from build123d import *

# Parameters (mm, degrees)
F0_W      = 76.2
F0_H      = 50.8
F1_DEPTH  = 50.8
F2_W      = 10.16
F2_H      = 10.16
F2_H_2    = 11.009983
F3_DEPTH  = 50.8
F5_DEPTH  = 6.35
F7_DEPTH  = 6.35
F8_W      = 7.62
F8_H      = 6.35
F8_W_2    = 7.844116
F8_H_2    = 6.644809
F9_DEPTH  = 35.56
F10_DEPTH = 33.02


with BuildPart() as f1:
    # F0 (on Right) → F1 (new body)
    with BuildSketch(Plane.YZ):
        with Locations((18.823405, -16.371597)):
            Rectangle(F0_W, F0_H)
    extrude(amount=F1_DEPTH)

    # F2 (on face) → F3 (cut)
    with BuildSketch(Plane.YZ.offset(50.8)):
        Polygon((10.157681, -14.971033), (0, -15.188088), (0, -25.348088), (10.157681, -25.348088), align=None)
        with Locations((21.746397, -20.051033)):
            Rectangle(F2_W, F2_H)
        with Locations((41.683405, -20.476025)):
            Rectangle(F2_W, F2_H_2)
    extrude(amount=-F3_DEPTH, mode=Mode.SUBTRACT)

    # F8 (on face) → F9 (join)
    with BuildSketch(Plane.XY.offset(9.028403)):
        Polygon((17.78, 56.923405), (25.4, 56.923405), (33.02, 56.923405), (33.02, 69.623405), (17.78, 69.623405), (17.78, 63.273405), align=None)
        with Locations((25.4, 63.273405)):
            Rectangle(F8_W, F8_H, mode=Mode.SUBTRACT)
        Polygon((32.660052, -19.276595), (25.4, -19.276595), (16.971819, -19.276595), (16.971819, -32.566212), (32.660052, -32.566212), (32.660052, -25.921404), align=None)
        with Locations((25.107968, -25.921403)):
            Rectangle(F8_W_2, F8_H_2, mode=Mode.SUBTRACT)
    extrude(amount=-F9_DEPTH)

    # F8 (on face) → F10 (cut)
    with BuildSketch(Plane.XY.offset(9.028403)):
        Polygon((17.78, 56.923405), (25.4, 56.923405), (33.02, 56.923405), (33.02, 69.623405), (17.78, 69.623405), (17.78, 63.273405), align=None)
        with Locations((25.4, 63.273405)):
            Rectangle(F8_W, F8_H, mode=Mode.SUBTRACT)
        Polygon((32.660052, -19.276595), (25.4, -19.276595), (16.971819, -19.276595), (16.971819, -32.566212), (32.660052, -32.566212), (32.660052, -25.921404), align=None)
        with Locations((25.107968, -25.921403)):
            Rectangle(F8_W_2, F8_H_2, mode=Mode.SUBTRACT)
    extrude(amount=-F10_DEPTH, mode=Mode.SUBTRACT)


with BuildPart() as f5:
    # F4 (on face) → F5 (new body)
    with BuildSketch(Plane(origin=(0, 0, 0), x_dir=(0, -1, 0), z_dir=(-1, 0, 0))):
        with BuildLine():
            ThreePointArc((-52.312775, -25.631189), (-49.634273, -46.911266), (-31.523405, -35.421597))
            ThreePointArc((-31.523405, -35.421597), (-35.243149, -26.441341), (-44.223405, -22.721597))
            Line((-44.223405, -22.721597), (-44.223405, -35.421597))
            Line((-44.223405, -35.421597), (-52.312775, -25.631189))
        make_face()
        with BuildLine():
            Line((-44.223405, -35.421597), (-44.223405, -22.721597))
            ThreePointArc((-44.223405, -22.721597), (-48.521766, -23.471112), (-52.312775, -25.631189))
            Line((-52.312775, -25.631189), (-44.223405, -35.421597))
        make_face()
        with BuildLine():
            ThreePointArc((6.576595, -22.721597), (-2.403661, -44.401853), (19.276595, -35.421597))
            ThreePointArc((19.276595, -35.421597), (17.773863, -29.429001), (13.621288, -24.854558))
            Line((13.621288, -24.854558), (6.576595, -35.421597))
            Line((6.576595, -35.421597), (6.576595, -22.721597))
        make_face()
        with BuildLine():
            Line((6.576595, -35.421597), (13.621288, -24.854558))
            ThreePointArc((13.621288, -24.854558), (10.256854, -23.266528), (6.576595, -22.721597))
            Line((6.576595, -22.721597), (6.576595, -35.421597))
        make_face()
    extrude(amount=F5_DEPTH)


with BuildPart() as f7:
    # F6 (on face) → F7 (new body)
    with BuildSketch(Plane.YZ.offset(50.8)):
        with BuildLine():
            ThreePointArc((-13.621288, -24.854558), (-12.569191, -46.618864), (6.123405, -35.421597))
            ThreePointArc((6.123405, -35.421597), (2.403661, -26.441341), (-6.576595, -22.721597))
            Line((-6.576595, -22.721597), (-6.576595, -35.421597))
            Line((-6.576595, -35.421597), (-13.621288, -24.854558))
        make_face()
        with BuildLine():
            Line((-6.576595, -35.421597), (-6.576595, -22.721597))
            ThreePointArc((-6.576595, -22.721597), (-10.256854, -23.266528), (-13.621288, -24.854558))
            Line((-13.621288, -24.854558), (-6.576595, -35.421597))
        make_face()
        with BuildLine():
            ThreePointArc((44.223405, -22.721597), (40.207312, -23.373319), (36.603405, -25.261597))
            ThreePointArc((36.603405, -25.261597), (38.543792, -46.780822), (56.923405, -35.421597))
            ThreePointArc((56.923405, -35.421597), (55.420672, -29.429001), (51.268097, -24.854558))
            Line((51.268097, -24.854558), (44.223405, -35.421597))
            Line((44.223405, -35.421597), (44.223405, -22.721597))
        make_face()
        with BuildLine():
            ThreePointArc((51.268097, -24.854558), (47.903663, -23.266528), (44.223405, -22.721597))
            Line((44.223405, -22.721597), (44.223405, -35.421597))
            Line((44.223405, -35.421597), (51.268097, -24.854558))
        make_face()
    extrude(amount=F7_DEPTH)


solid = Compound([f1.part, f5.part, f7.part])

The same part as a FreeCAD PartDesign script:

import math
import FreeCAD as App
import Part
import Sketcher
Q = App.Units.Quantity


def add_polygon(sketch, points):
    """Adds a closed chain of lines whose ends are joined by coincident constraints."""
    first, n = sketch.GeometryCount, len(points)
    for a, b in zip(points, points[1:] + points[:1]):
        sketch.addGeometry(Part.LineSegment(App.Vector(*a, 0), App.Vector(*b, 0)), False)
    for i in range(n):
        sketch.addConstraint(Sketcher.Constraint("Coincident", first + i, 2, first + (i + 1) % n, 1))

doc = App.newDocument("Part")
body = doc.addObject("PartDesign::Body", "Body")

sketch1 = doc.addObject("Sketcher::SketchObject", "Sketch")
body.addObject(sketch1)
sketch1.AttachmentSupport = (doc.YZ_Plane, [""])
sketch1.MapMode = "FlatFace"
add_polygon(sketch1, [(-19, 9), (-19, -42), (57, -42), (57, 9)])
sketch1.addConstraint([
    Sketcher.Constraint("Vertical", 0),
    Sketcher.Constraint("Horizontal", 1),
    Sketcher.Constraint("Vertical", 2),
    Sketcher.Constraint("Horizontal", 3),
    Sketcher.Constraint("DistanceX", 1, 1, 1, 2, Q("3 in")),
    Sketcher.Constraint("DistanceY", 0, 2, 0, 1, Q("2 in")),
    Sketcher.Constraint("DistanceX", 0, 2, -1, 1, Q("19.276595 mm")),
    Sketcher.Constraint("DistanceY", 0, 2, -1, 1, Q("41.771597 mm")),
])
pad1 = doc.addObject("PartDesign::Pad", "Pad")
body.addObject(pad1)
pad1.Profile = sketch1
pad1.Length = Q("2 in")

sketch2 = doc.addObject("Sketcher::SketchObject", "Sketch001")
body.addObject(sketch2)
sketch2.AttachmentSupport = (doc.YZ_Plane, [""])
sketch2.MapMode = "FlatFace"
sketch2.AttachmentOffset = App.Placement(App.Vector(0, 0, 2 * 25.4), App.Rotation())
add_polygon(sketch2, [(10.157681, -14.971033), (0, -15.188088), (0, -25.348088), (10.157681, -25.348088)])
add_polygon(sketch2, [(16.666397, -14.971033), (16.666397, -25.131033), (26.826397, -25.131033), (26.826397, -14.971033)])
add_polygon(sketch2, [(36.603405, -14.971034), (36.603405, -25.981016), (46.763405, -25.981016), (46.763405, -14.971034)])
sketch2.addConstraint([
    Sketcher.Constraint("Vertical", 1),
    Sketcher.Constraint("Horizontal", 2),
    Sketcher.Constraint("Vertical", 3),
    Sketcher.Constraint("Vertical", 4),
    Sketcher.Constraint("Horizontal", 5),
    Sketcher.Constraint("Vertical", 6),
    Sketcher.Constraint("Horizontal", 7),
    Sketcher.Constraint("Vertical", 8),
    Sketcher.Constraint("Horizontal", 9),
    Sketcher.Constraint("Vertical", 10),
    Sketcher.Constraint("Horizontal", 11),
    Sketcher.Constraint("PointOnObject", 0, 2, -2),
    Sketcher.Constraint("Horizontal", 3, 2, 6, 2),
    Sketcher.Constraint("Horizontal", 7, 2, 10, 2),
    Sketcher.Constraint("Equal", 7, 9),
    Sketcher.Constraint("Equal", 11, 1),
    Sketcher.Constraint("Equal", 1, 4),
    Sketcher.Constraint("DistanceX", 5, 1, 5, 2, Q("0.4 in")),
    Sketcher.Constraint("Distance", 0, Q("0.4 in")),
    Sketcher.Constraint("DistanceX", 2, 1, 2, 2, Q("10.157681 mm")),
    Sketcher.Constraint("DistanceY", 8, 2, 8, 1, Q("11.009983 mm")),
    Sketcher.Constraint("DistanceY", 1, 2, -1, 1, Q("25.348088 mm")),
    Sketcher.Constraint("DistanceX", 5, 2, 8, 2, Q("9.777008 mm")),
    Sketcher.Constraint("DistanceX", -1, 1, 4, 2, Q("16.666397 mm")),
])
pocket1 = doc.addObject("PartDesign::Pocket", "Pocket")
body.addObject(pocket1)
pocket1.Profile = sketch2
pocket1.Length = Q("2 in")

sketch3 = doc.addObject("Sketcher::SketchObject", "Sketch002")
body.addObject(sketch3)
sketch3.AttachmentSupport = (doc.XY_Plane, [""])
sketch3.MapMode = "FlatFace"
sketch3.AttachmentOffset = App.Placement(App.Vector(0, 0, 9.028403), App.Rotation())
add_polygon(sketch3, [(18, 57), (33, 57), (33, 70), (18, 70)])
add_polygon(sketch3, [(29, 60), (22, 60), (22, 66), (29, 66)])
add_polygon(sketch3, [(33, -19), (17, -19), (17, -33), (33, -33)])
add_polygon(sketch3, [(29, -29), (21, -29), (21, -23), (29, -23)])
sketch3.addConstraint([
    Sketcher.Constraint("Horizontal", 0),
    Sketcher.Constraint("Vertical", 1),
    Sketcher.Constraint("Horizontal", 2),
    Sketcher.Constraint("Vertical", 3),
    Sketcher.Constraint("Horizontal", 4),
    Sketcher.Constraint("Vertical", 5),
    Sketcher.Constraint("Horizontal", 6),
    Sketcher.Constraint("Vertical", 7),
    Sketcher.Constraint("Horizontal", 8),
    Sketcher.Constraint("Vertical", 9),
    Sketcher.Constraint("Horizontal", 10),
    Sketcher.Constraint("Vertical", 11),
    Sketcher.Constraint("Horizontal", 12),
    Sketcher.Constraint("Vertical", 13),
    Sketcher.Constraint("Horizontal", 14),
    Sketcher.Constraint("Vertical", 15),
    Sketcher.Constraint("DistanceX", 0, 1, 0, 2, Q("0.6 in")),
    Sketcher.Constraint("DistanceX", 4, 2, 4, 1, Q("0.3 in")),
    Sketcher.Constraint("DistanceY", 1, 1, 1, 2, Q("0.5 in")),
    Sketcher.Constraint("DistanceY", 8, 2, 3, 2, Q("3 in")),
    Sketcher.Constraint("DistanceY", 5, 1, 5, 2, Q("0.25 in")),
    Sketcher.Constraint("DistanceX", -1, 1, 0, 2, Q("1.3 in")),
    Sketcher.Constraint("DistanceX", -1, 1, 4, 2, Q("0.85 in")),
    Sketcher.Constraint("DistanceY", 3, 2, 4, 2, Q("0.125 in")),
    Sketcher.Constraint("DistanceY", 13, 1, 13, 2, Q("6.644809 mm")),
    Sketcher.Constraint("DistanceY", 13, 2, -1, 1, Q("22.598999 mm")),
    Sketcher.Constraint("DistanceX", 8, 2, 8, 1, Q("15.688233 mm")),
    Sketcher.Constraint("DistanceX", 12, 2, 12, 1, Q("7.844116 mm")),
    Sketcher.Constraint("DistanceY", 9, 2, 9, 1, Q("13.289617 mm")),
    Sketcher.Constraint("DistanceX", -1, 1, 8, 2, Q("16.971819 mm")),
    Sketcher.Constraint("DistanceX", -1, 1, 12, 2, Q("21.18591 mm")),
    Sketcher.Constraint("DistanceY", -1, 1, 0, 2, Q("56.923405 mm")),
])
pad2 = doc.addObject("PartDesign::Pad", "Pad001")
body.addObject(pad2)
pad2.Profile = sketch3
pad2.Length = Q("1.4 in")
pad2.Reversed = True

sketch4 = doc.addObject("Sketcher::SketchObject", "Sketch003")
body.addObject(sketch4)
sketch4.AttachmentSupport = (doc.XY_Plane, [""])
sketch4.MapMode = "FlatFace"
sketch4.AttachmentOffset = App.Placement(App.Vector(0, 0, 9.028403), App.Rotation())
add_polygon(sketch4, [(18, 57), (33, 57), (33, 70), (18, 70)])
add_polygon(sketch4, [(29, 60), (22, 60), (22, 66), (29, 66)])
add_polygon(sketch4, [(33, -19), (17, -19), (17, -33), (33, -33)])
add_polygon(sketch4, [(29, -29), (21, -29), (21, -23), (29, -23)])
sketch4.addConstraint([
    Sketcher.Constraint("Horizontal", 0),
    Sketcher.Constraint("Vertical", 1),
    Sketcher.Constraint("Horizontal", 2),
    Sketcher.Constraint("Vertical", 3),
    Sketcher.Constraint("Horizontal", 4),
    Sketcher.Constraint("Vertical", 5),
    Sketcher.Constraint("Horizontal", 6),
    Sketcher.Constraint("Vertical", 7),
    Sketcher.Constraint("Horizontal", 8),
    Sketcher.Constraint("Vertical", 9),
    Sketcher.Constraint("Horizontal", 10),
    Sketcher.Constraint("Vertical", 11),
    Sketcher.Constraint("Horizontal", 12),
    Sketcher.Constraint("Vertical", 13),
    Sketcher.Constraint("Horizontal", 14),
    Sketcher.Constraint("Vertical", 15),
    Sketcher.Constraint("DistanceX", 0, 1, 0, 2, Q("0.6 in")),
    Sketcher.Constraint("DistanceX", 4, 2, 4, 1, Q("0.3 in")),
    Sketcher.Constraint("DistanceY", 1, 1, 1, 2, Q("0.5 in")),
    Sketcher.Constraint("DistanceY", 8, 2, 3, 2, Q("3 in")),
    Sketcher.Constraint("DistanceY", 5, 1, 5, 2, Q("0.25 in")),
    Sketcher.Constraint("DistanceX", -1, 1, 0, 2, Q("1.3 in")),
    Sketcher.Constraint("DistanceX", -1, 1, 4, 2, Q("0.85 in")),
    Sketcher.Constraint("DistanceY", 3, 2, 4, 2, Q("0.125 in")),
    Sketcher.Constraint("DistanceY", 13, 1, 13, 2, Q("6.644809 mm")),
    Sketcher.Constraint("DistanceY", 13, 2, -1, 1, Q("22.598999 mm")),
    Sketcher.Constraint("DistanceX", 8, 2, 8, 1, Q("15.688233 mm")),
    Sketcher.Constraint("DistanceX", 12, 2, 12, 1, Q("7.844116 mm")),
    Sketcher.Constraint("DistanceY", 9, 2, 9, 1, Q("13.289617 mm")),
    Sketcher.Constraint("DistanceX", -1, 1, 8, 2, Q("16.971819 mm")),
    Sketcher.Constraint("DistanceX", -1, 1, 12, 2, Q("21.18591 mm")),
    Sketcher.Constraint("DistanceY", -1, 1, 0, 2, Q("56.923405 mm")),
])
pocket2 = doc.addObject("PartDesign::Pocket", "Pocket001")
body.addObject(pocket2)
pocket2.Profile = sketch4
pocket2.Length = Q("1.3 in")
body2 = doc.addObject("PartDesign::Body", "Body001")
body2.AllowCompound = True

sketch5 = doc.addObject("Sketcher::SketchObject", "Sketch004")
body2.addObject(sketch5)
sketch5.AttachmentSupport = (doc.getObject("YZ_Plane001"), [""])
sketch5.MapMode = "FlatFace"
sketch5.addGeometry([
    Part.ArcOfCircle(Part.Circle(App.Vector(44, -35, 0), App.Vector(0, 0, 1), 13), math.radians(-180), math.radians(50)),
    Part.ArcOfCircle(Part.Circle(App.Vector(44, -35, 0), App.Vector(0, 0, 1), 13), math.radians(90), math.radians(180)),
    Part.ArcOfCircle(Part.Circle(App.Vector(44, -35, 0), App.Vector(0, 0, 1), 13), math.radians(50), math.radians(90)),
    Part.ArcOfCircle(Part.Circle(App.Vector(-7, -35, 0), App.Vector(0, 0, 1), 13), math.radians(-180), math.radians(90)),
    Part.ArcOfCircle(Part.Circle(App.Vector(-7, -35, 0), App.Vector(0, 0, 1), 13), math.radians(124), math.radians(180)),
    Part.ArcOfCircle(Part.Circle(App.Vector(-7, -35, 0), App.Vector(0, 0, 1), 13), math.radians(90), math.radians(124)),
], False)
sketch5.addConstraint([
    Sketcher.Constraint("Tangent", 0, 1, 1, 2),
    Sketcher.Constraint("Tangent", 1, 1, 2, 2),
    Sketcher.Constraint("Tangent", 2, 1, 0, 2),
    Sketcher.Constraint("Tangent", 3, 1, 4, 2),
    Sketcher.Constraint("Tangent", 4, 1, 5, 2),
    Sketcher.Constraint("Tangent", 5, 1, 3, 2),
    Sketcher.Constraint("Equal", 2, 3),
    Sketcher.Constraint("Horizontal", 2, 3, 3, 3),
    Sketcher.Constraint("Horizontal", 5, 3, 0, 1),
    Sketcher.Constraint("Horizontal", 0, 1, 3, 1),
    Sketcher.Constraint("Vertical", 2, 3, 1, 1),
    Sketcher.Constraint("Vertical", 3, 3, 5, 1),
    Sketcher.Constraint("Radius", 0, Q("0.5 in")),
    Sketcher.Constraint("DistanceX", 3, 3, 0, 3, Q("2 in")),
    Sketcher.Constraint("DistanceX", 4, 3, -1, 1, Q("6.576598 mm")),
    Sketcher.Constraint("DistanceY", 2, 1, -1, 1, Q("25.631189 mm")),
    Sketcher.Constraint("DistanceY", 4, 1, -1, 1, Q("24.854558 mm")),
    Sketcher.Constraint("DistanceX", 1, 1, 2, 1, Q("8.08937 mm")),
])
pad3 = doc.addObject("PartDesign::Pad", "Pad002")
body2.addObject(pad3)
pad3.Profile = sketch5
pad3.Length = Q("0.25 in")
pad3.Reversed = True
body3 = doc.addObject("PartDesign::Body", "Body002")
body3.AllowCompound = True

sketch6 = doc.addObject("Sketcher::SketchObject", "Sketch005")
body3.addObject(sketch6)
sketch6.AttachmentSupport = (doc.getObject("YZ_Plane002"), [""])
sketch6.MapMode = "FlatFace"
sketch6.AttachmentOffset = App.Placement(App.Vector(0, 0, 2 * 25.4), App.Rotation())
sketch6.addGeometry([
    Part.ArcOfCircle(Part.Circle(App.Vector(-7, -35, 0), App.Vector(0, 0, 1), 13), math.radians(124), math.radians(360)),
    Part.ArcOfCircle(Part.Circle(App.Vector(-7, -35, 0), App.Vector(0, 0, 1), 13), math.radians(0), math.radians(90)),
    Part.ArcOfCircle(Part.Circle(App.Vector(-7, -35, 0), App.Vector(0, 0, 1), 13), math.radians(90), math.radians(124)),
    Part.ArcOfCircle(Part.Circle(App.Vector(44, -35, 0), App.Vector(0, 0, 1), 13), math.radians(90), math.radians(127)),
    Part.ArcOfCircle(Part.Circle(App.Vector(44, -35, 0), App.Vector(0, 0, 1), 13), math.radians(127), math.radians(360)),
    Part.ArcOfCircle(Part.Circle(App.Vector(44, -35, 0), App.Vector(0, 0, 1), 13), math.radians(0), math.radians(56)),
    Part.ArcOfCircle(Part.Circle(App.Vector(44, -35, 0), App.Vector(0, 0, 1), 13), math.radians(56), math.radians(90)),
], False)
sketch6.addConstraint([
    Sketcher.Constraint("Tangent", 0, 2, 1, 1),
    Sketcher.Constraint("Tangent", 1, 2, 2, 1),
    Sketcher.Constraint("Tangent", 2, 2, 0, 1),
    Sketcher.Constraint("Tangent", 3, 2, 4, 1),
    Sketcher.Constraint("Tangent", 4, 2, 5, 1),
    Sketcher.Constraint("Tangent", 5, 2, 6, 1),
    Sketcher.Constraint("Tangent", 6, 2, 3, 1),
    Sketcher.Constraint("Equal", 2, 4),
    Sketcher.Constraint("Equal", 4, 5),
    Sketcher.Constraint("Horizontal", 2, 3, 4, 3),
    Sketcher.Constraint("Horizontal", 6, 3, 0, 2),
    Sketcher.Constraint("Horizontal", 0, 2, 4, 2),
    Sketcher.Constraint("Horizontal", 2, 2, 5, 2),
    Sketcher.Constraint("Vertical", 2, 3, 1, 2),
    Sketcher.Constraint("Vertical", 5, 3, 6, 2),
    Sketcher.Constraint("Radius", 0, Q("0.5 in")),
    Sketcher.Constraint("DistanceX", 0, 3, 3, 3, Q("1.9999999 in")),
    Sketcher.Constraint("DistanceX", 3, 2, 3, 3, Q("0.2999999 in")),
    Sketcher.Constraint("DistanceX", 2, 2, -1, 1, Q("13.621288 mm")),
    Sketcher.Constraint("DistanceY", 5, 2, -1, 1, Q("24.854558 mm")),
    Sketcher.Constraint("DistanceY", 2, 2, 1, 2, Q("2.132961 mm")),
])
pad4 = doc.addObject("PartDesign::Pad", "Pad003")
body3.addObject(pad4)
pad4.Profile = sketch6
pad4.Length = Q("0.25 in")

doc.recompute()
